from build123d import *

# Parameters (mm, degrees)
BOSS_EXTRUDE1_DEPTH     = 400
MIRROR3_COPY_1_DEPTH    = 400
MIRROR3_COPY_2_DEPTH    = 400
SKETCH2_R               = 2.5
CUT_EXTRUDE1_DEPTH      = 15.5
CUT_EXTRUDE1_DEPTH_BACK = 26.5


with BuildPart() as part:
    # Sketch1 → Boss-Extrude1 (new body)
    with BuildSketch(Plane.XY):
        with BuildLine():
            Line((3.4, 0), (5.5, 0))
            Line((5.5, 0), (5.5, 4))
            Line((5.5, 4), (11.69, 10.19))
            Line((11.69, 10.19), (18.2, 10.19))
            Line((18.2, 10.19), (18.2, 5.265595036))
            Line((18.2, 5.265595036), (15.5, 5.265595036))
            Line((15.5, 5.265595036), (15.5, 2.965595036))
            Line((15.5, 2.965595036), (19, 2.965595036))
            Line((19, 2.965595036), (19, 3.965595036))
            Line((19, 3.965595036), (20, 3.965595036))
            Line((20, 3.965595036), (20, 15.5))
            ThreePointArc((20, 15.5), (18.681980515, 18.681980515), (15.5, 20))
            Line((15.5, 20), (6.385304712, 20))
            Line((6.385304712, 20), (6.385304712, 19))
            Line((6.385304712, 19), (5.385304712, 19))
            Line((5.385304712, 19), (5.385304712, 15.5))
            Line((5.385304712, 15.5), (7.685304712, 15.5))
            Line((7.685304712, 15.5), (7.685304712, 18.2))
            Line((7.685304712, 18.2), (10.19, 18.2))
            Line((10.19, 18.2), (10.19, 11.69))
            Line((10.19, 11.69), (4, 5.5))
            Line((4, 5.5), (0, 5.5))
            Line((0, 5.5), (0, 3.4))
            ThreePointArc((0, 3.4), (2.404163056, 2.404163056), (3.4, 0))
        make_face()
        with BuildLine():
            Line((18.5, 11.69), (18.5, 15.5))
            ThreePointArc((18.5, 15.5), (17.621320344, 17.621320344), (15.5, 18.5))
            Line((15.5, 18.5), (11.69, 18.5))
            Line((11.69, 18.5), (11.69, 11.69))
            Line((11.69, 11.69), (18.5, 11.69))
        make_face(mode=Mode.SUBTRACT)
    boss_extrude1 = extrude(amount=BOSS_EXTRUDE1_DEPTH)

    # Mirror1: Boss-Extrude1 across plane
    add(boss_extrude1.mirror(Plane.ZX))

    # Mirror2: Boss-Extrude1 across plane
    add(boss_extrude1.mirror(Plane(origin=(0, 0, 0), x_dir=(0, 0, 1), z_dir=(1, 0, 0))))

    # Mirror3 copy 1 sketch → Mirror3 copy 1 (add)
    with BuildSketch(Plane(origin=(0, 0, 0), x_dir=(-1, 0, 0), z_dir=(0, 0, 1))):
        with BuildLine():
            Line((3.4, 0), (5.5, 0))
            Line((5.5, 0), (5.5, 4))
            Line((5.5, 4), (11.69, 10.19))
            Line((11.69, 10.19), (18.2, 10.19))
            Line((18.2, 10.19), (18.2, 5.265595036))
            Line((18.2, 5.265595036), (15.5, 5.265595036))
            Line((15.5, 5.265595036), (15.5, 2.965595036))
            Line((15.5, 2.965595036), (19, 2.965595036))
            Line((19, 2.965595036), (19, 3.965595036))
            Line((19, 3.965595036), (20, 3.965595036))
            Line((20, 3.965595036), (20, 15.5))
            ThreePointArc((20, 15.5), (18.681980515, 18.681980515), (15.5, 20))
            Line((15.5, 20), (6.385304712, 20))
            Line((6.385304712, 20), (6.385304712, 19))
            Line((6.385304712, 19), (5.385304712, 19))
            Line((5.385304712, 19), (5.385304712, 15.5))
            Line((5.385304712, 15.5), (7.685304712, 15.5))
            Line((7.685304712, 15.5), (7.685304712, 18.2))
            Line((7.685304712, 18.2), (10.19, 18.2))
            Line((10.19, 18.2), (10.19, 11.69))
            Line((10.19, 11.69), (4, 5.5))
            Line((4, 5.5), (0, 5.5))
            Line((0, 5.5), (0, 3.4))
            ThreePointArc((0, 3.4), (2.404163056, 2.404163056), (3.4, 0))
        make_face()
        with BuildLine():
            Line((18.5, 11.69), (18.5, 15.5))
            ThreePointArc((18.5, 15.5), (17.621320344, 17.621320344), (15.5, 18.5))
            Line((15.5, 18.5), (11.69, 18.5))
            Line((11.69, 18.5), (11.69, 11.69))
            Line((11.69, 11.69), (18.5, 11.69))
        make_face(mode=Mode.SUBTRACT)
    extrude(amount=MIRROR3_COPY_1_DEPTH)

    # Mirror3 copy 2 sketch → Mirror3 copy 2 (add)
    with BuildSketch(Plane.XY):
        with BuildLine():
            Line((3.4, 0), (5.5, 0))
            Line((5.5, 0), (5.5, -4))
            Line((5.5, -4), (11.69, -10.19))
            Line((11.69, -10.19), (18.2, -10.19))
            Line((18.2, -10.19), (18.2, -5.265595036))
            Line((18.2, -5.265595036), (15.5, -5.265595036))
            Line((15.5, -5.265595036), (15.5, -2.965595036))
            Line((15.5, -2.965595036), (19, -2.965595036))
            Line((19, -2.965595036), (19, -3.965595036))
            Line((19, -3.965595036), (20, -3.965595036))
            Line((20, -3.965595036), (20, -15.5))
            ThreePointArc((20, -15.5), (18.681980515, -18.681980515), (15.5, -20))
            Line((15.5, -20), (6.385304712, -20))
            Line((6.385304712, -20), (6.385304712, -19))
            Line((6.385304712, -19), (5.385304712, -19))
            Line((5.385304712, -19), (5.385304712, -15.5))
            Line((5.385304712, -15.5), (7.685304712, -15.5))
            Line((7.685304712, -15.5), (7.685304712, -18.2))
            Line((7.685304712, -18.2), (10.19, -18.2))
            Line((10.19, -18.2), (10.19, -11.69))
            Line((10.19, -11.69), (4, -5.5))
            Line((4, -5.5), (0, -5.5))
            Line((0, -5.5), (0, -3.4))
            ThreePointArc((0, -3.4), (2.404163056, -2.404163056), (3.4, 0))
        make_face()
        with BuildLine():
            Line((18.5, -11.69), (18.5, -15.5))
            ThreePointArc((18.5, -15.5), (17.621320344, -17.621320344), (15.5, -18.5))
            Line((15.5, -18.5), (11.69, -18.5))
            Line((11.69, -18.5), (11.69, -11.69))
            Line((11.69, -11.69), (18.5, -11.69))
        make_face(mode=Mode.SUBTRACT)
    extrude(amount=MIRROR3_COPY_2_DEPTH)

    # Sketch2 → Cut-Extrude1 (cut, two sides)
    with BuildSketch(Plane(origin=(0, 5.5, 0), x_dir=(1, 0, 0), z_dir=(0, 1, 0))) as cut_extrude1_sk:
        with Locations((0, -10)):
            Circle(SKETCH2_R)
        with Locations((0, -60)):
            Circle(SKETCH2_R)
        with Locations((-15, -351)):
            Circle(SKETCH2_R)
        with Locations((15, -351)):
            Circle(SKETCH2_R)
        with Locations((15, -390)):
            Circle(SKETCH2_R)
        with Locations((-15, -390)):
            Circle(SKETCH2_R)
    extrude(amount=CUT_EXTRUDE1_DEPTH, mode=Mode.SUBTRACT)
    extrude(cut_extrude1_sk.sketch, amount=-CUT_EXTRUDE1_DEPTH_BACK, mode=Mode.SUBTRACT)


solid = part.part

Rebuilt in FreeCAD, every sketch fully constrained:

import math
import FreeCAD as App
import Part
import Sketcher
Q = App.Units.Quantity

doc = App.newDocument("Part")
body = doc.addObject("PartDesign::Body", "Body")

# Sketch on XY plane
sketch1 = body.newObject("Sketcher::SketchObject", "Sketch")
sketch1.AttachmentSupport = (doc.getObject("XY_Plane"), [""])
sketch1.MapMode = "FlatFace"
sketch1.addGeometry([
    Part.LineSegment(App.Vector(3.4, 0, 0), App.Vector(5.5, 0, 0)),  # 0
    Part.LineSegment(App.Vector(5.5, 0, 0), App.Vector(5.5, 4, 0)),  # 1
    Part.LineSegment(App.Vector(5.5, 4, 0), App.Vector(11.7, 10.2, 0)),  # 2
    Part.LineSegment(App.Vector(11.7, 10.2, 0), App.Vector(18.2, 10.2, 0)),  # 3
    Part.LineSegment(App.Vector(18.2, 10.2, 0), App.Vector(18.2, 5.3, 0)),  # 4
    Part.LineSegment(App.Vector(18.2, 5.3, 0), App.Vector(15.5, 5.3, 0)),  # 5
    Part.LineSegment(App.Vector(15.5, 5.3, 0), App.Vector(15.5, 3, 0)),  # 6
    Part.LineSegment(App.Vector(15.5, 3, 0), App.Vector(19, 3, 0)),  # 7
    Part.LineSegment(App.Vector(19, 3, 0), App.Vector(19, 4, 0)),  # 8
    Part.LineSegment(App.Vector(19, 4, 0), App.Vector(20, 4, 0)),  # 9
    Part.LineSegment(App.Vector(20, 4, 0), App.Vector(20, 15.5, 0)),  # 10
    Part.ArcOfCircle(Part.Circle(App.Vector(15.5, 15.5, 0), App.Vector(0, 0, 1), 4.5), math.radians(0), math.radians(90)),  # 11
    Part.LineSegment(App.Vector(15.5, 20, 0), App.Vector(6.4, 20, 0)),  # 12
    Part.LineSegment(App.Vector(6.4, 20, 0), App.Vector(6.4, 19, 0)),  # 13
    Part.LineSegment(App.Vector(6.4, 19, 0), App.Vector(5.4, 19, 0)),  # 14
    Part.LineSegment(App.Vector(5.4, 19, 0), App.Vector(5.4, 15.5, 0)),  # 15
    Part.LineSegment(App.Vector(5.4, 15.5, 0), App.Vector(7.7, 15.5, 0)),  # 16
    Part.LineSegment(App.Vector(7.7, 15.5, 0), App.Vector(7.7, 18.2, 0)),  # 17
    Part.LineSegment(App.Vector(7.7, 18.2, 0), App.Vector(10.2, 18.2, 0)),  # 18
    Part.LineSegment(App.Vector(10.2, 18.2, 0), App.Vector(10.2, 11.7, 0)),  # 19
    Part.LineSegment(App.Vector(10.2, 11.7, 0), App.Vector(4, 5.5, 0)),  # 20
    Part.LineSegment(App.Vector(4, 5.5, 0), App.Vector(0, 5.5, 0)),  # 21
    Part.LineSegment(App.Vector(0, 5.5, 0), App.Vector(0, 3.4, 0)),  # 22
    Part.ArcOfCircle(Part.Circle(App.Vector(0, 0, 0), App.Vector(0, 0, 1), 3.4), math.radians(0), math.radians(90)),  # 23
    Part.LineSegment(App.Vector(18.5, 15.5, 0), App.Vector(18.5, 11.7, 0)),  # 24
    Part.LineSegment(App.Vector(18.5, 11.7, 0), App.Vector(11.7, 11.7, 0)),  # 25
    Part.LineSegment(App.Vector(11.7, 11.7, 0), App.Vector(11.7, 18.5, 0)),  # 26
    Part.LineSegment(App.Vector(11.7, 18.5, 0), App.Vector(15.5, 18.5, 0)),  # 27
    Part.ArcOfCircle(Part.Circle(App.Vector(15.5, 15.5, 0), App.Vector(0, 0, 1), 3), math.radians(0), math.radians(90)),  # 28
], False)
sketch1.addConstraint([
    Sketcher.Constraint("Coincident", 0, 2, 1, 1),
    Sketcher.Constraint("Coincident", 1, 2, 2, 1),
    Sketcher.Constraint("Coincident", 2, 2, 3, 1),
    Sketcher.Constraint("Coincident", 3, 2, 4, 1),
    Sketcher.Constraint("Coincident", 4, 2, 5, 1),
    Sketcher.Constraint("Coincident", 5, 2, 6, 1),
    Sketcher.Constraint("Coincident", 6, 2, 7, 1),
    Sketcher.Constraint("Coincident", 7, 2, 8, 1),
    Sketcher.Constraint("Coincident", 8, 2, 9, 1),
    Sketcher.Constraint("Coincident", 9, 2, 10, 1),
    Sketcher.Constraint("Tangent", 10, 2, 11, 1),
    Sketcher.Constraint("Tangent", 11, 2, 12, 1),
    Sketcher.Constraint("Coincident", 12, 2, 13, 1),
    Sketcher.Constraint("Coincident", 13, 2, 14, 1),
    Sketcher.Constraint("Coincident", 14, 2, 15, 1),
    Sketcher.Constraint("Coincident", 15, 2, 16, 1),
    Sketcher.Constraint("Coincident", 16, 2, 17, 1),
    Sketcher.Constraint("Coincident", 17, 2, 18, 1),
    Sketcher.Constraint("Coincident", 18, 2, 19, 1),
    Sketcher.Constraint("Coincident", 19, 2, 20, 1),
    Sketcher.Constraint("Coincident", 20, 2, 21, 1),
    Sketcher.Constraint("Coincident", 21, 2, 22, 1),
    Sketcher.Constraint("Coincident", 22, 2, 23, 2),
    Sketcher.Constraint("Coincident", 23, 1, 0, 1),
    Sketcher.Constraint("Coincident", 24, 2, 25, 1),
    Sketcher.Constraint("Coincident", 25, 2, 26, 1),
    Sketcher.Constraint("Coincident", 26, 2, 27, 1),
    Sketcher.Constraint("Tangent", 27, 2, 28, 2),
    Sketcher.Constraint("Tangent", 28, 1, 24, 1),
    Sketcher.Constraint("Horizontal", 0),
    Sketcher.Constraint("Vertical", 1),
    Sketcher.Constraint("Horizontal", 3),
    Sketcher.Constraint("Vertical", 4),
    Sketcher.Constraint("Horizontal", 5),
    Sketcher.Constraint("Vertical", 6),
    Sketcher.Constraint("Horizontal", 7),
    Sketcher.Constraint("Vertical", 8),
    Sketcher.Constraint("Horizontal", 9),
    Sketcher.Constraint("Vertical", 10),
    Sketcher.Constraint("Horizontal", 12),
    Sketcher.Constraint("Vertical", 13),
    Sketcher.Constraint("Horizontal", 14),
    Sketcher.Constraint("Vertical", 15),
    Sketcher.Constraint("Horizontal", 16),
    Sketcher.Constraint("Vertical", 17),
    Sketcher.Constraint("Horizontal", 18),
    Sketcher.Constraint("Vertical", 19),
    Sketcher.Constraint("Horizontal", 21),
    Sketcher.Constraint("Vertical", 22),
    Sketcher.Constraint("Vertical", 24),
    Sketcher.Constraint("Horizontal", 25),
    Sketcher.Constraint("Vertical", 26),
    Sketcher.Constraint("Horizontal", 27),
    Sketcher.Constraint("Coincident", 23, 3, -1, 1),
    Sketcher.Constraint("Coincident", 28, 3, 11, 3),
    Sketcher.Constraint("PointOnObject", 0, 2, -1),
    Sketcher.Constraint("PointOnObject", 21, 2, -2),
    Sketcher.Constraint("Parallel", 2, 20),
    Sketcher.Constraint("Horizontal", 10, 2, 15, 2),
    Sketcher.Constraint("Horizontal", 19, 2, 24, 2),
    Sketcher.Constraint("Vertical", 28, 3, 5, 2),
    Sketcher.Constraint("Vertical", 2, 2, 25, 2),
    Sketcher.Constraint("Equal", 9, 14),
    Sketcher.Constraint("Equal", 21, 1),
    Sketcher.Constraint("Equal", 16, 6),
    Sketcher.Constraint("Equal", 14, 8),
    Sketcher.Constraint("Equal", 8, 13),
    Sketcher.Constraint("Equal", 5, 17),
    Sketcher.Constraint("Equal", 3, 19),
    Sketcher.Constraint("Equal", 0, 22),
    Sketcher.Constraint("Equal", 2, 20),
    Sketcher.Constraint("Radius", 28, 3.0),
    Sketcher.Constraint("Radius", 11, 4.5),
    Sketcher.Constraint("Radius", 23, 3.4),
    Sketcher.Constraint("DistanceX", 9, 1, 9, 2, 1.0),
    Sketcher.Constraint("DistanceX", 21, 2, 21, 1, 4.0),
    Sketcher.Constraint("Angle", 2, Q("45 deg")),
    Sketcher.Constraint("DistanceX", 0, 1, 0, 2, 2.1),
    Sketcher.Constraint("DistanceX", 5, 2, 5, 1, 2.7),
    Sketcher.Constraint("DistanceX", 16, 1, 16, 2, 2.3),
    Sketcher.Constraint("DistanceX", -1, 1, 7, 2, 19.0),
    Sketcher.Constraint("DistanceX", 3, 1, 3, 2, 6.51),
    Sketcher.Constraint("DistanceX", 12, 2, 12, 1, 9.114695),
    Sketcher.Constraint("DistanceY", 4, 2, 4, 1, 4.924405),
])
pad1 = body.newObject("PartDesign::Pad", "Pad")
pad1.Profile = sketch1
pad1.Length = 400
doc.recompute()

mirrored = body.newObject("PartDesign::Mirrored", "Mirrored")
mirrored.Originals = [pad1]
mirrored.MirrorPlane = (doc.getObject("XZ_Plane"), [""])
body.Tip = mirrored
doc.recompute()

mirrored2 = body.newObject("PartDesign::Mirrored", "Mirrored001")
mirrored2.Originals = [pad1]
mirrored2.MirrorPlane = (doc.getObject("YZ_Plane"), [""])
body.Tip = mirrored2

# Sketch on XY plane
sketch2 = body.newObject("Sketcher::SketchObject", "Sketch001")
sketch2.AttachmentSupport = (doc.getObject("XY_Plane"), [""])
sketch2.MapMode = "FlatFace"
sketch2.addGeometry([
    Part.LineSegment(App.Vector(-3.4, 0, 0), App.Vector(-5.5, 0, 0)),  # 0
    Part.LineSegment(App.Vector(-5.5, 0, 0), App.Vector(-5.5, -4, 0)),  # 1
    Part.LineSegment(App.Vector(-5.5, -4, 0), App.Vector(-11.7, -10.2, 0)),  # 2
    Part.LineSegment(App.Vector(-11.7, -10.2, 0), App.Vector(-18.2, -10.2, 0)),  # 3
    Part.LineSegment(App.Vector(-18.2, -10.2, 0), App.Vector(-18.2, -5.3, 0)),  # 4
    Part.LineSegment(App.Vector(-18.2, -5.3, 0), App.Vector(-15.5, -5.3, 0)),  # 5
    Part.LineSegment(App.Vector(-15.5, -5.3, 0), App.Vector(-15.5, -3, 0)),  # 6
    Part.LineSegment(App.Vector(-15.5, -3, 0), App.Vector(-19, -3, 0)),  # 7
    Part.LineSegment(App.Vector(-19, -3, 0), App.Vector(-19, -4, 0)),  # 8
    Part.LineSegment(App.Vector(-19, -4, 0), App.Vector(-20, -4, 0)),  # 9
    Part.LineSegment(App.Vector(-20, -4, 0), App.Vector(-20, -15.5, 0)),  # 10
    Part.ArcOfCircle(Part.Circle(App.Vector(-15.5, -15.5, 0), App.Vector(0, 0, 1), 4.5), math.radians(-180), math.radians(-90)),  # 11
    Part.LineSegment(App.Vector(-15.5, -20, 0), App.Vector(-6.4, -20, 0)),  # 12
    Part.LineSegment(App.Vector(-6.4, -20, 0), App.Vector(-6.4, -19, 0)),  # 13
    Part.LineSegment(App.Vector(-6.4, -19, 0), App.Vector(-5.4, -19, 0)),  # 14
    Part.LineSegment(App.Vector(-5.4, -19, 0), App.Vector(-5.4, -15.5, 0)),  # 15
    Part.LineSegment(App.Vector(-5.4, -15.5, 0), App.Vector(-7.7, -15.5, 0)),  # 16
    Part.LineSegment(App.Vector(-7.7, -15.5, 0), App.Vector(-7.7, -18.2, 0)),  # 17
    Part.LineSegment(App.Vector(-7.7, -18.2, 0), App.Vector(-10.2, -18.2, 0)),  # 18
    Part.LineSegment(App.Vector(-10.2, -18.2, 0), App.Vector(-10.2, -11.7, 0)),  # 19
    Part.LineSegment(App.Vector(-10.2, -11.7, 0), App.Vector(-4, -5.5, 0)),  # 20
    Part.LineSegment(App.Vector(-4, -5.5, 0), App.Vector(0, -5.5, 0)),  # 21
    Part.LineSegment(App.Vector(0, -5.5, 0), App.Vector(0, -3.4, 0)),  # 22
    Part.ArcOfCircle(Part.Circle(App.Vector(0, 0, 0), App.Vector(0, 0, 1), 3.4), math.radians(180), math.radians(270)),  # 23
    Part.LineSegment(App.Vector(-18.5, -15.5, 0), App.Vector(-18.5, -11.7, 0)),  # 24
    Part.LineSegment(App.Vector(-18.5, -11.7, 0), App.Vector(-11.7, -11.7, 0)),  # 25
    Part.LineSegment(App.Vector(-11.7, -11.7, 0), App.Vector(-11.7, -18.5, 0)),  # 26
    Part.LineSegment(App.Vector(-11.7, -18.5, 0), App.Vector(-15.5, -18.5, 0)),  # 27
    Part.ArcOfCircle(Part.Circle(App.Vector(-15.5, -15.5, 0), App.Vector(0, 0, 1), 3), math.radians(180), math.radians(270)),  # 28
], False)
sketch2.addConstraint([
    Sketcher.Constraint("Coincident", 0, 2, 1, 1),
    Sketcher.Constraint("Coincident", 1, 2, 2, 1),
    Sketcher.Constraint("Coincident", 2, 2, 3, 1),
    Sketcher.Constraint("Coincident", 3, 2, 4, 1),
    Sketcher.Constraint("Coincident", 4, 2, 5, 1),
    Sketcher.Constraint("Coincident", 5, 2, 6, 1),
    Sketcher.Constraint("Coincident", 6, 2, 7, 1),
    Sketcher.Constraint("Coincident", 7, 2, 8, 1),
    Sketcher.Constraint("Coincident", 8, 2, 9, 1),
    Sketcher.Constraint("Coincident", 9, 2, 10, 1),
    Sketcher.Constraint("Tangent", 10, 2, 11, 1),
    Sketcher.Constraint("Tangent", 11, 2, 12, 1),
    Sketcher.Constraint("Coincident", 12, 2, 13, 1),
    Sketcher.Constraint("Coincident", 13, 2, 14, 1),
    Sketcher.Constraint("Coincident", 14, 2, 15, 1),
    Sketcher.Constraint("Coincident", 15, 2, 16, 1),
    Sketcher.Constraint("Coincident", 16, 2, 17, 1),
    Sketcher.Constraint("Coincident", 17, 2, 18, 1),
    Sketcher.Constraint("Coincident", 18, 2, 19, 1),
    Sketcher.Constraint("Coincident", 19, 2, 20, 1),
    Sketcher.Constraint("Coincident", 20, 2, 21, 1),
    Sketcher.Constraint("Coincident", 21, 2, 22, 1),
    Sketcher.Constraint("Coincident", 22, 2, 23, 2),
    Sketcher.Constraint("Coincident", 23, 1, 0, 1),
    Sketcher.Constraint("Coincident", 24, 2, 25, 1),
    Sketcher.Constraint("Coincident", 25, 2, 26, 1),
    Sketcher.Constraint("Coincident", 26, 2, 27, 1),
    Sketcher.Constraint("Tangent", 27, 2, 28, 2),
    Sketcher.Constraint("Tangent", 28, 1, 24, 1),
    Sketcher.Constraint("Horizontal", 0),
    Sketcher.Constraint("Vertical", 1),
    Sketcher.Constraint("Horizontal", 3),
    Sketcher.Constraint("Vertical", 4),
    Sketcher.Constraint("Horizontal", 5),
    Sketcher.Constraint("Vertical", 6),
    Sketcher.Constraint("Horizontal", 7),
    Sketcher.Constraint("Vertical", 8),
    Sketcher.Constraint("Horizontal", 9),
    Sketcher.Constraint("Vertical", 10),
    Sketcher.Constraint("Horizontal", 12),
    Sketcher.Constraint("Vertical", 13),
    Sketcher.Constraint("Horizontal", 14),
    Sketcher.Constraint("Vertical", 15),
    Sketcher.Constraint("Horizontal", 16),
    Sketcher.Constraint("Vertical", 17),
    Sketcher.Constraint("Horizontal", 18),
    Sketcher.Constraint("Vertical", 19),
    Sketcher.Constraint("Horizontal", 21),
    Sketcher.Constraint("Vertical", 22),
    Sketcher.Constraint("Vertical", 24),
    Sketcher.Constraint("Horizontal", 25),
    Sketcher.Constraint("Vertical", 26),
    Sketcher.Constraint("Horizontal", 27),
    Sketcher.Constraint("Coincident", 23, 3, -1, 1),
    Sketcher.Constraint("Coincident", 28, 3, 11, 3),
    Sketcher.Constraint("PointOnObject", 0, 2, -1),
    Sketcher.Constraint("PointOnObject", 21, 2, -2),
    Sketcher.Constraint("Parallel", 2, 20),
    Sketcher.Constraint("Horizontal", 10, 2, 15, 2),
    Sketcher.Constraint("Horizontal", 19, 2, 24, 2),
    Sketcher.Constraint("Vertical", 28, 3, 5, 2),
    Sketcher.Constraint("Vertical", 2, 2, 25, 2),
    Sketcher.Constraint("Equal", 9, 14),
    Sketcher.Constraint("Equal", 21, 1),
    Sketcher.Constraint("Equal", 16, 6),
    Sketcher.Constraint("Equal", 14, 8),
    Sketcher.Constraint("Equal", 8, 13),
    Sketcher.Constraint("Equal", 5, 17),
    Sketcher.Constraint("Equal", 3, 19),
    Sketcher.Constraint("Equal", 0, 22),
    Sketcher.Constraint("Equal", 2, 20),
    Sketcher.Constraint("Radius", 28, 3.0),
    Sketcher.Constraint("Radius", 11, 4.5),
    Sketcher.Constraint("Radius", 23, 3.4),
    Sketcher.Constraint("DistanceX", 9, 2, 9, 1, 1.0),
    Sketcher.Constraint("DistanceX", 21, 1, 21, 2, 4.0),
    Sketcher.Constraint("Angle", 2, Q("-135 deg")),
    Sketcher.Constraint("DistanceX", 0, 2, 0, 1, 2.1),
    Sketcher.Constraint("DistanceX", 5, 1, 5, 2, 2.7),
    Sketcher.Constraint("DistanceX", 16, 2, 16, 1, 2.3),
    Sketcher.Constraint("DistanceX", 7, 2, -1, 1, 19.0),
    Sketcher.Constraint("DistanceX", 3, 2, 3, 1, 6.51),
    Sketcher.Constraint("DistanceX", 12, 1, 12, 2, 9.114695),
    Sketcher.Constraint("DistanceY", 4, 1, 4, 2, 4.924405),
])
pad2 = body.newObject("PartDesign::Pad", "Pad001")
pad2.Profile = sketch2
pad2.Length = 400

# Sketch on XY plane
sketch3 = body.newObject("Sketcher::SketchObject", "Sketch002")
sketch3.AttachmentSupport = (doc.getObject("XY_Plane"), [""])
sketch3.MapMode = "FlatFace"
sketch3.addGeometry([
    Part.LineSegment(App.Vector(5.5, 0, 0), App.Vector(3.4, 0, 0)),  # 0
    Part.ArcOfCircle(Part.Circle(App.Vector(0, 0, 0), App.Vector(0, 0, 1), 3.4), math.radians(-90), math.radians(0)),  # 1
    Part.LineSegment(App.Vector(0, -3.4, 0), App.Vector(0, -5.5, 0)),  # 2
    Part.LineSegment(App.Vector(0, -5.5, 0), App.Vector(4, -5.5, 0)),  # 3
    Part.LineSegment(App.Vector(4, -5.5, 0), App.Vector(10.2, -11.7, 0)),  # 4
    Part.LineSegment(App.Vector(10.2, -11.7, 0), App.Vector(10.2, -18.2, 0)),  # 5
    Part.LineSegment(App.Vector(10.2, -18.2, 0), App.Vector(7.7, -18.2, 0)),  # 6
    Part.LineSegment(App.Vector(7.7, -18.2, 0), App.Vector(7.7, -15.5, 0)),  # 7
    Part.LineSegment(App.Vector(7.7, -15.5, 0), App.Vector(5.4, -15.5, 0)),  # 8
    Part.LineSegment(App.Vector(5.4, -15.5, 0), App.Vector(5.4, -19, 0)),  # 9
    Part.LineSegment(App.Vector(5.4, -19, 0), App.Vector(6.4, -19, 0)),  # 10
    Part.LineSegment(App.Vector(6.4, -19, 0), App.Vector(6.4, -20, 0)),  # 11
    Part.LineSegment(App.Vector(6.4, -20, 0), App.Vector(15.5, -20, 0)),  # 12
    Part.ArcOfCircle(Part.Circle(App.Vector(15.5, -15.5, 0), App.Vector(0, 0, 1), 4.5), math.radians(-90), math.radians(0)),  # 13
    Part.LineSegment(App.Vector(20, -15.5, 0), App.Vector(20, -4, 0)),  # 14
    Part.LineSegment(App.Vector(20, -4, 0), App.Vector(19, -4, 0)),  # 15
    Part.LineSegment(App.Vector(19, -4, 0), App.Vector(19, -3, 0)),  # 16
    Part.LineSegment(App.Vector(19, -3, 0), App.Vector(15.5, -3, 0)),  # 17
    Part.LineSegment(App.Vector(15.5, -3, 0), App.Vector(15.5, -5.3, 0)),  # 18
    Part.LineSegment(App.Vector(15.5, -5.3, 0), App.Vector(18.2, -5.3, 0)),  # 19
    Part.LineSegment(App.Vector(18.2, -5.3, 0), App.Vector(18.2, -10.2, 0)),  # 20
    Part.LineSegment(App.Vector(18.2, -10.2, 0), App.Vector(11.7, -10.2, 0)),  # 21
    Part.LineSegment(App.Vector(11.7, -10.2, 0), App.Vector(5.5, -4, 0)),  # 22
    Part.LineSegment(App.Vector(5.5, -4, 0), App.Vector(5.5, 0, 0)),  # 23
    Part.LineSegment(App.Vector(18.5, -11.7, 0), App.Vector(18.5, -15.5, 0)),  # 24
    Part.ArcOfCircle(Part.Circle(App.Vector(15.5, -15.5, 0), App.Vector(0, 0, 1), 3), math.radians(-90), math.radians(0)),  # 25
    Part.LineSegment(App.Vector(15.5, -18.5, 0), App.Vector(11.7, -18.5, 0)),  # 26
    Part.LineSegment(App.Vector(11.7, -18.5, 0), App.Vector(11.7, -11.7, 0)),  # 27
    Part.LineSegment(App.Vector(11.7, -11.7, 0), App.Vector(18.5, -11.7, 0)),  # 28
], False)
sketch3.addConstraint([
    Sketcher.Constraint("Coincident", 0, 2, 1, 2),
    Sketcher.Constraint("Coincident", 1, 1, 2, 1),
    Sketcher.Constraint("Coincident", 2, 2, 3, 1),
    Sketcher.Constraint("Coincident", 3, 2, 4, 1),
    Sketcher.Constraint("Coincident", 4, 2, 5, 1),
    Sketcher.Constraint("Coincident", 5, 2, 6, 1),
    Sketcher.Constraint("Coincident", 6, 2, 7, 1),
    Sketcher.Constraint("Coincident", 7, 2, 8, 1),
    Sketcher.Constraint("Coincident", 8, 2, 9, 1),
    Sketcher.Constraint("Coincident", 9, 2, 10, 1),
    Sketcher.Constraint("Coincident", 10, 2, 11, 1),
    Sketcher.Constraint("Coincident", 11, 2, 12, 1),
    Sketcher.Constraint("Tangent", 12, 2, 13, 1),
    Sketcher.Constraint("Tangent", 13, 2, 14, 1),
    Sketcher.Constraint("Coincident", 14, 2, 15, 1),
    Sketcher.Constraint("Coincident", 15, 2, 16, 1),
    Sketcher.Constraint("Coincident", 16, 2, 17, 1),
    Sketcher.Constraint("Coincident", 17, 2, 18, 1),
    Sketcher.Constraint("Coincident", 18, 2, 19, 1),
    Sketcher.Constraint("Coincident", 19, 2, 20, 1),
    Sketcher.Constraint("Coincident", 20, 2, 21, 1),
    Sketcher.Constraint("Coincident", 21, 2, 22, 1),
    Sketcher.Constraint("Coincident", 22, 2, 23, 1),
    Sketcher.Constraint("Coincident", 23, 2, 0, 1),
    Sketcher.Constraint("Tangent", 24, 2, 25, 2),
    Sketcher.Constraint("Tangent", 25, 1, 26, 1),
    Sketcher.Constraint("Coincident", 26, 2, 27, 1),
    Sketcher.Constraint("Coincident", 27, 2, 28, 1),
    Sketcher.Constraint("Coincident", 28, 2, 24, 1),
    Sketcher.Constraint("Horizontal", 0),
    Sketcher.Constraint("Vertical", 2),
    Sketcher.Constraint("Horizontal", 3),
    Sketcher.Constraint("Vertical", 5),
    Sketcher.Constraint("Horizontal", 6),
    Sketcher.Constraint("Vertical", 7),
    Sketcher.Constraint("Horizontal", 8),
    Sketcher.Constraint("Vertical", 9),
    Sketcher.Constraint("Horizontal", 10),
    Sketcher.Constraint("Vertical", 11),
    Sketcher.Constraint("Horizontal", 12),
    Sketcher.Constraint("Vertical", 14),
    Sketcher.Constraint("Horizontal", 15),
    Sketcher.Constraint("Vertical", 16),
    Sketcher.Constraint("Horizontal", 17),
    Sketcher.Constraint("Vertical", 18),
    Sketcher.Constraint("Horizontal", 19),
    Sketcher.Constraint("Vertical", 20),
    Sketcher.Constraint("Horizontal", 21),
    Sketcher.Constraint("Vertical", 23),
    Sketcher.Constraint("Vertical", 24),
    Sketcher.Constraint("Horizontal", 26),
    Sketcher.Constraint("Vertical", 27),
    Sketcher.Constraint("Horizontal", 28),
    Sketcher.Constraint("Coincident", 1, 3, -1, 1),
    Sketcher.Constraint("Coincident", 25, 3, 13, 3),
    Sketcher.Constraint("PointOnObject", 0, 2, -1),
    Sketcher.Constraint("PointOnObject", 1, 1, -2),
    Sketcher.Constraint("Parallel", 4, 22),
    Sketcher.Constraint("Horizontal", 25, 3, 7, 2),
    Sketcher.Constraint("Horizontal", 4, 2, 27, 2),
    Sketcher.Constraint("Vertical", 12, 2, 17, 2),
    Sketcher.Constraint("Vertical", 21, 2, 26, 2),
    Sketcher.Constraint("Equal", 10, 15),
    Sketcher.Constraint("Equal", 0, 2),
    Sketcher.Constraint("Equal", 21, 5),
    Sketcher.Constraint("Equal", 19, 7),
    Sketcher.Constraint("Equal", 17, 9),
    Sketcher.Constraint("Equal", 11, 16),
    Sketcher.Constraint("Equal", 8, 18),
    Sketcher.Constraint("Equal", 3, 23),
    Sketcher.Constraint("Equal", 4, 22),
    Sketcher.Constraint("Radius", 25, 3.0),
    Sketcher.Constraint("Radius", 1, 3.4),
    Sketcher.Constraint("Radius", 13, 4.5),
    Sketcher.Constraint("DistanceX", 3, 1, 3, 2, 4.0),
    Sketcher.Constraint("DistanceX", 10, 1, 10, 2, 1.0),
    Sketcher.Constraint("Angle", 4, Q("-45 deg")),
    Sketcher.Constraint("DistanceX", 0, 2, 0, 1, 2.1),
    Sketcher.Constraint("DistanceX", 8, 2, 8, 1, 2.3),
    Sketcher.Constraint("DistanceX", 19, 1, 19, 2, 2.7),
    Sketcher.Constraint("DistanceY", 9, 2, -1, 1, 19.0),
    Sketcher.Constraint("DistanceX", 21, 2, 21, 1, 6.51),
    Sketcher.Constraint("DistanceX", 6, 2, 6, 1, 2.504695),
    Sketcher.Constraint("DistanceY", 14, 1, 14, 2, 11.534405),
])
pad3 = body.newObject("PartDesign::Pad", "Pad002")
pad3.Profile = sketch3
pad3.Length = 400

# Sketch on XZ plane
sketch4 = body.newObject("Sketcher::SketchObject", "Sketch003")
sketch4.AttachmentSupport = (doc.getObject("XZ_Plane"), [""])
sketch4.MapMode = "FlatFace"
sketch4.AttachmentOffset = App.Placement(App.Vector(0, 0, -5.5), App.Rotation())
sketch4.addGeometry([
    Part.Circle(App.Vector(0, 10, 0), App.Vector(0, 0, 1), 2.5),  # 0
    Part.Circle(App.Vector(0, 60, 0), App.Vector(0, 0, 1), 2.5),  # 1
    Part.Circle(App.Vector(-15, 351, 0), App.Vector(0, 0, 1), 2.5),  # 2
    Part.Circle(App.Vector(15, 351, 0), App.Vector(0, 0, 1), 2.5),  # 3
    Part.Circle(App.Vector(15, 390, 0), App.Vector(0, 0, 1), 2.5),  # 4
    Part.Circle(App.Vector(-15, 390, 0), App.Vector(0, 0, 1), 2.5),  # 5
], False)
sketch4.addConstraint([
    Sketcher.Constraint("Equal", 0, 1),
    Sketcher.Constraint("Equal", 1, 2),
    Sketcher.Constraint("Equal", 2, 3),
    Sketcher.Constraint("Equal", 3, 4),
    Sketcher.Constraint("Equal", 4, 5),
    Sketcher.Constraint("Symmetric", 2, 3, 3, 3, -2),
    Sketcher.Constraint("Symmetric", 4, 3, 5, 3, -2),
    Sketcher.Constraint("PointOnObject", 0, 3, -2),
    Sketcher.Constraint("PointOnObject", 1, 3, -2),
    Sketcher.Constraint("Vertical", 3, 3, 4, 3),
    Sketcher.Constraint("Diameter", 0, 5.0),
    Sketcher.Constraint("DistanceY", -1, 1, 0, 3, 10.0),
    Sketcher.Constraint("DistanceY", -1, 1, 1, 3, 60.0),
    Sketcher.Constraint("DistanceX", 2, 3, -1, 1, 15.0),
    Sketcher.Constraint("DistanceY", -1, 1, 2, 3, 351.0),
    Sketcher.Constraint("DistanceY", -1, 1, 4, 3, 390.0),
])
pocket1 = body.newObject("PartDesign::Pocket", "Pocket")
pocket1.Profile = sketch4
pocket1.Type = "ThroughAll"
pocket1.Midplane = True

doc.recompute()
